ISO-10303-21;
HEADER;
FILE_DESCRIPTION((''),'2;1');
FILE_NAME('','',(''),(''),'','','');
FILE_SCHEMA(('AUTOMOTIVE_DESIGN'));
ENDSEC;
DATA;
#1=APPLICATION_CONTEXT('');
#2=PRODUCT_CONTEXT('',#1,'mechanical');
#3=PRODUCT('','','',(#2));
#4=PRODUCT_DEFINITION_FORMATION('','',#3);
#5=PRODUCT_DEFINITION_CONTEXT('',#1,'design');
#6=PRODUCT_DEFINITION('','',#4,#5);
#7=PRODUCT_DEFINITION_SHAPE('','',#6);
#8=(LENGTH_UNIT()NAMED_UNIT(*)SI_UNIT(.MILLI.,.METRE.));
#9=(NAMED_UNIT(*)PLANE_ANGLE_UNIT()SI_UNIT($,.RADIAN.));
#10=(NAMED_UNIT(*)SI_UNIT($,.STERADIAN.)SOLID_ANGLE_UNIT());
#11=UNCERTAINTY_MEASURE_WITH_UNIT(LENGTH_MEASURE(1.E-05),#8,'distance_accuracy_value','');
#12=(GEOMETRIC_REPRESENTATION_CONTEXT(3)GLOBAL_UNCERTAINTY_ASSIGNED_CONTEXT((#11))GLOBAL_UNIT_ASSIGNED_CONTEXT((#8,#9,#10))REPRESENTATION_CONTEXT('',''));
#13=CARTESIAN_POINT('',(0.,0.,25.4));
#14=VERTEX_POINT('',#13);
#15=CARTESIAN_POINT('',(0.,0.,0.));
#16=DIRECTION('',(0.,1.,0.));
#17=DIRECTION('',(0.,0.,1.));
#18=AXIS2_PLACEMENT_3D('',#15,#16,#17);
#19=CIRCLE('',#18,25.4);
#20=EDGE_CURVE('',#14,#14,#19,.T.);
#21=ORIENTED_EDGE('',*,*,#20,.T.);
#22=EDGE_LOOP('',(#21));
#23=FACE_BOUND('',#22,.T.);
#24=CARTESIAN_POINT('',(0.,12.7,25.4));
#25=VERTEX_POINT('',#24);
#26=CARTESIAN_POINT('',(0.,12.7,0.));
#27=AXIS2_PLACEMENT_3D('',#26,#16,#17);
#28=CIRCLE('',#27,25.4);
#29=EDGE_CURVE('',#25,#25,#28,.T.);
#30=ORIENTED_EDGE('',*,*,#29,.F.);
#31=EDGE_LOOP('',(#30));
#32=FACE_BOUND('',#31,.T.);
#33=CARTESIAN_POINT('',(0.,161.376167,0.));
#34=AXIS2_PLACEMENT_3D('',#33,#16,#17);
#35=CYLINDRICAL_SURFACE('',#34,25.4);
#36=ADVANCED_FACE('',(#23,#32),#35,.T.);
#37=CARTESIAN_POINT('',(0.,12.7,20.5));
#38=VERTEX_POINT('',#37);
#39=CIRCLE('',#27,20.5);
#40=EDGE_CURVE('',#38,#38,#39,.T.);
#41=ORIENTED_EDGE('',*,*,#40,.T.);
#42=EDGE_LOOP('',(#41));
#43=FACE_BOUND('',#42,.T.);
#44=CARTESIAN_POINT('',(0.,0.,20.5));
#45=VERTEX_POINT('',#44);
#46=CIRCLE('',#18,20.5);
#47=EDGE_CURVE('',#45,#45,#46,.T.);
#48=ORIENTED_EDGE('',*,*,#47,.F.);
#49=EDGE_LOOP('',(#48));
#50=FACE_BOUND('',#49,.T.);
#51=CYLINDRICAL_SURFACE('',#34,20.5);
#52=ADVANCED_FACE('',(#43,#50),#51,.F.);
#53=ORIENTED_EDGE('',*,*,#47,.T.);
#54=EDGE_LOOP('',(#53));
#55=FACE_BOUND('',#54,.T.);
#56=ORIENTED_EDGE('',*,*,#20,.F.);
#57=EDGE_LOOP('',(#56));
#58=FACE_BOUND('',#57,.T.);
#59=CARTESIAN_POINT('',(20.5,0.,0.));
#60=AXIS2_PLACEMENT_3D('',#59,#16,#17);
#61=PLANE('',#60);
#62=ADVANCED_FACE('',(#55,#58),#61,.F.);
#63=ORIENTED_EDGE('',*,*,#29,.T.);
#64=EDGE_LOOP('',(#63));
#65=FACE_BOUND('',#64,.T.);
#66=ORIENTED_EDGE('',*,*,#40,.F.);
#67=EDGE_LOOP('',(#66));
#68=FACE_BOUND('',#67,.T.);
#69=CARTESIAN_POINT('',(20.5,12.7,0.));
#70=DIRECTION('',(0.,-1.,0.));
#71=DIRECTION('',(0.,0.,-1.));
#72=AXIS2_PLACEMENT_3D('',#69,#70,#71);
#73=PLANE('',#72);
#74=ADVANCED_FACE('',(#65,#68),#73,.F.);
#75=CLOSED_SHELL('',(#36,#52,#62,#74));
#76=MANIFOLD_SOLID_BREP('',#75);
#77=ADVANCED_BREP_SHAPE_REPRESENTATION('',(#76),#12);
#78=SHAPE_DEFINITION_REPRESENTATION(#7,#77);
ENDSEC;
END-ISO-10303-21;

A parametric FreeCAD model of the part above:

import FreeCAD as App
import Part
import Sketcher

doc = App.newDocument("Part")
body = doc.addObject("PartDesign::Body", "Body")

# Sketch on XY plane
sketch1 = body.newObject("Sketcher::SketchObject", "Sketch")
sketch1.AttachmentSupport = (doc.getObject("XY_Plane"), [""])
sketch1.MapMode = "FlatFace"
sketch1.addGeometry(Part.LineSegment(App.Vector(20.5, 12.7, 0), App.Vector(20.5, 0, 0)), False)
sketch1.addGeometry(Part.LineSegment(App.Vector(20.5, 0, 0), App.Vector(25.4, 0, 0)), False)
sketch1.addGeometry(Part.LineSegment(App.Vector(25.4, 0, 0), App.Vector(25.4, 12.7, 0)), False)
sketch1.addGeometry(Part.LineSegment(App.Vector(25.4, 12.7, 0), App.Vector(20.5, 12.7, 0)), False)
sketch1.addConstraint(Sketcher.Constraint("Coincident", 0, 2, 1, 1))
sketch1.addConstraint(Sketcher.Constraint("Coincident", 1, 2, 2, 1))
sketch1.addConstraint(Sketcher.Constraint("Coincident", 2, 2, 3, 1))
sketch1.addConstraint(Sketcher.Constraint("Coincident", 3, 2, 0, 1))
sketch1.addConstraint(Sketcher.Constraint("Vertical", 0))
sketch1.addConstraint(Sketcher.Constraint("Horizontal", 1))
sketch1.addConstraint(Sketcher.Constraint("Vertical", 2))
sketch1.addConstraint(Sketcher.Constraint("Horizontal", 3))
sketch1.addConstraint(Sketcher.Constraint("PointOnObject", 0, 2, -1))
sketch1.addConstraint(Sketcher.Constraint("DistanceX", 1, 1, 1, 2, 4.9))
sketch1.addConstraint(Sketcher.Constraint("DistanceY", 0, 2, 0, 1, 12.7))
sketch1.addConstraint(Sketcher.Constraint("DistanceX", -1, 1, 0, 2, 20.5))
revolution = body.newObject("PartDesign::Revolution", "Revolution")
revolution.Profile = sketch1
revolution.ReferenceAxis = (sketch1, ["V_Axis"])
revolution.Angle = 360

doc.recompute()
